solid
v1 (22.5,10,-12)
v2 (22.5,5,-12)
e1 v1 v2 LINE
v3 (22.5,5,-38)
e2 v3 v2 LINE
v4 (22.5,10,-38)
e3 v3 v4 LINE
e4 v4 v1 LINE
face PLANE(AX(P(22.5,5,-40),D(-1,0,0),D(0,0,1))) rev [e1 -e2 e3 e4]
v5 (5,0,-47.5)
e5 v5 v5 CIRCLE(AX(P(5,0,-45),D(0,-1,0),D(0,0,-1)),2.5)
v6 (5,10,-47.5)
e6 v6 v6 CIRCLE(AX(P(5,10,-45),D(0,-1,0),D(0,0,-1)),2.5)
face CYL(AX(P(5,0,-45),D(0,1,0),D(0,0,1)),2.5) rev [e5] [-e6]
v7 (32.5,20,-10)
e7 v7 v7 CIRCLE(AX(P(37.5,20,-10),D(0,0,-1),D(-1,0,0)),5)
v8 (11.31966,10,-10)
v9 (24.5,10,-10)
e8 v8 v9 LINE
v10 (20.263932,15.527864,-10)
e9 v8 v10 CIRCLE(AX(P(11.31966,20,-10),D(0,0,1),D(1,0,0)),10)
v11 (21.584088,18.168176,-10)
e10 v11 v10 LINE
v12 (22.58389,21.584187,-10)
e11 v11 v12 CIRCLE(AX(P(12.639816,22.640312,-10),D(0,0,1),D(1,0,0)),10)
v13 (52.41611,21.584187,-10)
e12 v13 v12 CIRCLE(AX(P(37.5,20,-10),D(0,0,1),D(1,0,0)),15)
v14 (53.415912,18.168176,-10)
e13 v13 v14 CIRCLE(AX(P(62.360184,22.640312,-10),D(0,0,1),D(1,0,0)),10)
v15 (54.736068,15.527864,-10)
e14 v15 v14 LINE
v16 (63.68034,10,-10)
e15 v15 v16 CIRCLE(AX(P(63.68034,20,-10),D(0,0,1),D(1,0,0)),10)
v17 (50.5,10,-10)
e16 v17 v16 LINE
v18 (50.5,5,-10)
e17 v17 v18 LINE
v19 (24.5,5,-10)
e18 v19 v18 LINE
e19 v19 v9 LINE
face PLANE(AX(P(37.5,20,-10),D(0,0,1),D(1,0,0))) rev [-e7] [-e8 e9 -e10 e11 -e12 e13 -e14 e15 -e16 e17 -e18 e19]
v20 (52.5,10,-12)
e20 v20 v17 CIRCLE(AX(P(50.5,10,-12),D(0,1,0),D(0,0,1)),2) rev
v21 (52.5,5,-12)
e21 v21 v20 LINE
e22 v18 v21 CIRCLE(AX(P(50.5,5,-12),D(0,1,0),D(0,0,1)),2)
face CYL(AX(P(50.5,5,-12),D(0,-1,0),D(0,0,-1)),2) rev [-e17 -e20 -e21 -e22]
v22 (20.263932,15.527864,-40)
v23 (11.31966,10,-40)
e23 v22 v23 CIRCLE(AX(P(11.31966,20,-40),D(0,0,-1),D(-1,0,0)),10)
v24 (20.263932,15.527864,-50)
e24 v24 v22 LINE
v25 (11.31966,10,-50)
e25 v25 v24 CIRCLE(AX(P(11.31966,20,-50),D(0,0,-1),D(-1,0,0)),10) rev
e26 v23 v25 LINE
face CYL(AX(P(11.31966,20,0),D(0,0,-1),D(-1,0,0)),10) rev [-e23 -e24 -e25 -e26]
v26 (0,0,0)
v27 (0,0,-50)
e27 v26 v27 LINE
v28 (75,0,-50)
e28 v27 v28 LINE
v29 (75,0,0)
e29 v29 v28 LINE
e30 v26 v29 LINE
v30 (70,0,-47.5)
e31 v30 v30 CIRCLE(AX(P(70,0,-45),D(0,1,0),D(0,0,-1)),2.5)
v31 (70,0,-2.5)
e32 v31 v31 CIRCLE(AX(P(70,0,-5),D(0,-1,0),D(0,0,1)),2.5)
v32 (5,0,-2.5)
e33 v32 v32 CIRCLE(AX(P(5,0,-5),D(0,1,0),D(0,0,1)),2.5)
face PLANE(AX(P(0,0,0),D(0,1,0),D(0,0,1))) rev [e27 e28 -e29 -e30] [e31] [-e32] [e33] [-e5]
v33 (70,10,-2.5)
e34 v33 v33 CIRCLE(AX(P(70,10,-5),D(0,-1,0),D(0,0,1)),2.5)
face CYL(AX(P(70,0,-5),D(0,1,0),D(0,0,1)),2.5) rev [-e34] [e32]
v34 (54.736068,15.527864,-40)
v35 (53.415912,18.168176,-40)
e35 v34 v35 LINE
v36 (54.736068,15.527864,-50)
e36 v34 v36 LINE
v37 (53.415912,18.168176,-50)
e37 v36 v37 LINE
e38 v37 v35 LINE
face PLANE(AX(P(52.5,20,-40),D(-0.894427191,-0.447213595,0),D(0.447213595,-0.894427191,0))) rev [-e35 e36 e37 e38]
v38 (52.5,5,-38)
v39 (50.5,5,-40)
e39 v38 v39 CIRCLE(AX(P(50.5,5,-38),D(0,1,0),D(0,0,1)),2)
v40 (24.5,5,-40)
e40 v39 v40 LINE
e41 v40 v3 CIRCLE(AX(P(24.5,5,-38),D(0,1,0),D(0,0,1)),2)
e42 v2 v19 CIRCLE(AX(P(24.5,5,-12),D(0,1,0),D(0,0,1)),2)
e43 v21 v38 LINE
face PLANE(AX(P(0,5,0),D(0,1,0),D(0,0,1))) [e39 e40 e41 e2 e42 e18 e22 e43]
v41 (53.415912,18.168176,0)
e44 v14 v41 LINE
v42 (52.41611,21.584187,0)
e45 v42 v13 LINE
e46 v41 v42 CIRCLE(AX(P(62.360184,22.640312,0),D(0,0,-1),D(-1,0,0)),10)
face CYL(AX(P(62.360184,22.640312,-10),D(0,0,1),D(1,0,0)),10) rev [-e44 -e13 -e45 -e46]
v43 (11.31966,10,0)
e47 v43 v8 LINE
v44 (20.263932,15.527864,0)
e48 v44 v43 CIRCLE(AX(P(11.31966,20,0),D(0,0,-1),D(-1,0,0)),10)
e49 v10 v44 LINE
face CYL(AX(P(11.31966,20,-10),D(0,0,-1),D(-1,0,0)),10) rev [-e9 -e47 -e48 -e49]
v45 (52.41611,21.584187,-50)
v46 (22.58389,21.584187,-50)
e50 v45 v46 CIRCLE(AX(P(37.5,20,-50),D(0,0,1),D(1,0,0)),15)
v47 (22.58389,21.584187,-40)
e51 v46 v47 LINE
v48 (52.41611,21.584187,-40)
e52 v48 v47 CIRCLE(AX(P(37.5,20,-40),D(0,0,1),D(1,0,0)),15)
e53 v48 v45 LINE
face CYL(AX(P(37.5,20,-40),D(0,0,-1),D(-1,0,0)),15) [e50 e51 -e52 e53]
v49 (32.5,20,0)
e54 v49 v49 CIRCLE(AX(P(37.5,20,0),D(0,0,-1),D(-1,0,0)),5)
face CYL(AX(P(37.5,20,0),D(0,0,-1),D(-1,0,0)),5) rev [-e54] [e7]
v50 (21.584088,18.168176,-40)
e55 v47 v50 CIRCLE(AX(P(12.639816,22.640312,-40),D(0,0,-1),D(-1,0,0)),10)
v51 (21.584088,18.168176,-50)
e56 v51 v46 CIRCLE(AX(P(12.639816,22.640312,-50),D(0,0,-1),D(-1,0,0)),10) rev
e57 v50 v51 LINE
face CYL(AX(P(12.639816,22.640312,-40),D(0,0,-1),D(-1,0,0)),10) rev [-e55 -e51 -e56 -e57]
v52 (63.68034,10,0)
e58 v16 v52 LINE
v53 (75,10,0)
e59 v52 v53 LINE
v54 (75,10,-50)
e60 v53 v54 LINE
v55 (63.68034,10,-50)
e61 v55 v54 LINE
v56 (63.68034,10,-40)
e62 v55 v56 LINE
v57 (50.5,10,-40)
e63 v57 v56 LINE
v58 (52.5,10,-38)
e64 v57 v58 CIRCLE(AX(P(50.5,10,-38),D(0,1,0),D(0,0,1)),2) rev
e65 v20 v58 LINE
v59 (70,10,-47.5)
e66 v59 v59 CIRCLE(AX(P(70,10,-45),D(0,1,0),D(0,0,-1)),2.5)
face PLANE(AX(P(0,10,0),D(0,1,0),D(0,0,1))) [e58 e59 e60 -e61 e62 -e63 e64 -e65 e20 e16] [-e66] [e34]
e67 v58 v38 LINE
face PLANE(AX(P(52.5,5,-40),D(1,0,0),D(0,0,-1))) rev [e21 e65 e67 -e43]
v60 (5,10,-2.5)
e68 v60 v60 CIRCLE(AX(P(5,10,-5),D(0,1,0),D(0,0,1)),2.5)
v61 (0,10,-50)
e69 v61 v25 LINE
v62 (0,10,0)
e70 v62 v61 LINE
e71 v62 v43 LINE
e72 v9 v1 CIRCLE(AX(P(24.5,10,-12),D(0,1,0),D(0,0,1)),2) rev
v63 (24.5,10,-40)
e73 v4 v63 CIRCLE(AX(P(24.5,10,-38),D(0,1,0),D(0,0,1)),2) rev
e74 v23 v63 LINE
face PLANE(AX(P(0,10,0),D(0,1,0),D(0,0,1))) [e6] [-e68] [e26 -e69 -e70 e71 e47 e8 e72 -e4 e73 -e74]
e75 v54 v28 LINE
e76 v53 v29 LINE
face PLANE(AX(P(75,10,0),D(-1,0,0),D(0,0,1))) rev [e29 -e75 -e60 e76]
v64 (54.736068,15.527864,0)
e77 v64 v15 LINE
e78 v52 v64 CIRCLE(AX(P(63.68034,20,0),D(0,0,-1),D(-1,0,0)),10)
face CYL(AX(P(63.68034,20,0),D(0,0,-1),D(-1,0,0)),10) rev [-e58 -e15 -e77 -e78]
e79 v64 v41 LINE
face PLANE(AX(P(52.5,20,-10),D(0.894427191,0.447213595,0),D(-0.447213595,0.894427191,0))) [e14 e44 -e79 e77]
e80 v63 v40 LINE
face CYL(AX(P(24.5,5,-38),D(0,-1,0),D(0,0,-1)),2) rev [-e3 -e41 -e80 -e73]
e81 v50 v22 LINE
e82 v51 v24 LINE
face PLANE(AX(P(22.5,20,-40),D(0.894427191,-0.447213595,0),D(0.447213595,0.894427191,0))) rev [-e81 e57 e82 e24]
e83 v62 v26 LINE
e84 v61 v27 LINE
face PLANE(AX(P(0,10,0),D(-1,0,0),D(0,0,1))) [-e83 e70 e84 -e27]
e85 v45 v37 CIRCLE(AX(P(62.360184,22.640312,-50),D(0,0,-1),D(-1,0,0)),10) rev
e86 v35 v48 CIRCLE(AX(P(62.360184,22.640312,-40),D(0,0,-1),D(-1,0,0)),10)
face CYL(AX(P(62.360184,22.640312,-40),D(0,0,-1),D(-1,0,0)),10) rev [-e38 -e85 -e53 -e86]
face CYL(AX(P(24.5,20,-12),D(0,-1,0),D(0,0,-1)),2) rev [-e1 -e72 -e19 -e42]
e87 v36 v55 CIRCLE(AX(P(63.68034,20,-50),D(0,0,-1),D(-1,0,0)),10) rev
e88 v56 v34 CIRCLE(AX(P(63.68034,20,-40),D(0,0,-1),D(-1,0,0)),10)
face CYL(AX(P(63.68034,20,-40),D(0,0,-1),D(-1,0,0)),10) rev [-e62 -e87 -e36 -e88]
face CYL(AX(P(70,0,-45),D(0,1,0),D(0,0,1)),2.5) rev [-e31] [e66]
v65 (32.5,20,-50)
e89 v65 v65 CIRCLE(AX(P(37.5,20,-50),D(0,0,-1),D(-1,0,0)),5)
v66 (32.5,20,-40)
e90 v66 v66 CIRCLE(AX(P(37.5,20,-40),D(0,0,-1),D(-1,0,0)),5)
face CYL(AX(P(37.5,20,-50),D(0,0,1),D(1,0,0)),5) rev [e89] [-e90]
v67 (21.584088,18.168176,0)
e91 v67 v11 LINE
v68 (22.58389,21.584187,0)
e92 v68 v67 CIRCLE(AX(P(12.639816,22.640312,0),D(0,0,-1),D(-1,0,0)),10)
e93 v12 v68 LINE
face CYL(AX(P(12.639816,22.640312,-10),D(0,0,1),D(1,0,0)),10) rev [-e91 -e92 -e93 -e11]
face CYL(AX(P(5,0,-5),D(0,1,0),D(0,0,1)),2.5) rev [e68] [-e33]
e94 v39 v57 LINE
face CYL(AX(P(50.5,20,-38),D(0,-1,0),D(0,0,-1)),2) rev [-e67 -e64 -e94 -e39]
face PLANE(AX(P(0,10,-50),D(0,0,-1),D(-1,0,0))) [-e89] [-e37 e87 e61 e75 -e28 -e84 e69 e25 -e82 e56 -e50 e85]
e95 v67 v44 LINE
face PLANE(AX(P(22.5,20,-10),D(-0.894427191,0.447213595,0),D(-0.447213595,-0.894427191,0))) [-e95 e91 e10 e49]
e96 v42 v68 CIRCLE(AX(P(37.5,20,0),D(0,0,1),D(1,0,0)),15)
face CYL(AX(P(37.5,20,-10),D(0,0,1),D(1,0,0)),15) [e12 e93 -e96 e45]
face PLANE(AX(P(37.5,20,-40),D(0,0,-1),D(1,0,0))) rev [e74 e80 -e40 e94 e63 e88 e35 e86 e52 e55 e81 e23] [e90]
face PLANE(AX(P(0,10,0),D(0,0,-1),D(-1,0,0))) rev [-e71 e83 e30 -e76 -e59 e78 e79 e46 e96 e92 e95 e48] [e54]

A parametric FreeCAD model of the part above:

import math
import FreeCAD as App
import Part
import Sketcher


def edges_at(feature, points):
    """Names of the edges that pass closest to the given points."""
    edges = feature.Shape.Edges
    near = lambda p: min(range(len(edges)), key=lambda i: edges[i].distToShape(Part.Vertex(*p))[0])
    return sorted({f"Edge{near(p) + 1}" for p in points})

doc = App.newDocument("Part")
body = doc.addObject("PartDesign::Body", "Body")

# Sketch on XZ plane
sketch1 = body.newObject("Sketcher::SketchObject", "Sketch")
sketch1.AttachmentSupport = (doc.getObject("XZ_Plane"), [""])
sketch1.MapMode = "FlatFace"
sketch1.addGeometry([
    Part.LineSegment(App.Vector(0, -50, 0), App.Vector(0, 0, 0)),
    Part.LineSegment(App.Vector(0, 0, 0), App.Vector(75, 0, 0)),
    Part.LineSegment(App.Vector(75, 0, 0), App.Vector(75, -50, 0)),
    Part.LineSegment(App.Vector(75, -50, 0), App.Vector(0, -50, 0)),
], False)
sketch1.addConstraint([
    Sketcher.Constraint("Coincident", 0, 2, 1, 1),
    Sketcher.Constraint("Coincident", 1, 2, 2, 1),
    Sketcher.Constraint("Coincident", 2, 2, 3, 1),
    Sketcher.Constraint("Coincident", 3, 2, 0, 1),
    Sketcher.Constraint("Vertical", 0),
    Sketcher.Constraint("Horizontal", 1),
    Sketcher.Constraint("Vertical", 2),
    Sketcher.Constraint("Horizontal", 3),
    Sketcher.Constraint("Coincident", 0, 2, -1, 1),
    Sketcher.Constraint("DistanceX", 1, 1, 1, 2, 75.0),
    Sketcher.Constraint("DistanceY", 0, 1, 0, 2, 50.0),
])
pad1 = body.newObject("PartDesign::Pad", "Pad")
pad1.Profile = sketch1
pad1.Length = 10
pad1.Reversed = True

# Sketch on XY plane
sketch2 = body.newObject("Sketcher::SketchObject", "Sketch001")
sketch2.AttachmentSupport = (doc.getObject("XY_Plane"), [""])
sketch2.MapMode = "FlatFace"
sketch2.addGeometry([
    Part.LineSegment(App.Vector(58, 10, 0), App.Vector(52, 20, 0)),
    Part.ArcOfCircle(Part.Circle(App.Vector(38, 20, 0), App.Vector(0, 0, 1), 15), math.radians(0), math.radians(180)),
    Part.LineSegment(App.Vector(22, 20, 0), App.Vector(18, 10, 0)),
    Part.LineSegment(App.Vector(18, 10, 0), App.Vector(58, 10, 0)),
], False)
sketch2.addConstraint([
    Sketcher.Constraint("Coincident", 0, 2, 1, 1),
    Sketcher.Constraint("Coincident", 1, 2, 2, 1),
    Sketcher.Constraint("Coincident", 2, 2, 3, 1),
    Sketcher.Constraint("Coincident", 3, 2, 0, 1),
    Sketcher.Constraint("Horizontal", 3),
    Sketcher.Constraint("Horizontal", 1, 3, 0, 2),
    Sketcher.Constraint("Horizontal", 0, 2, 1, 2),
    Sketcher.Constraint("Equal", 0, 2),
    Sketcher.Constraint("Radius", 1, 15.0),
    Sketcher.Constraint("DistanceX", 3, 1, 3, 2, 40.0),
    Sketcher.Constraint("DistanceY", -1, 1, 1, 3, 20.0),
    Sketcher.Constraint("DistanceY", -1, 1, 2, 2, 10.0),
    Sketcher.Constraint("DistanceX", -1, 1, 1, 3, 37.5),
])
pad2 = body.newObject("PartDesign::Pad", "Pad001")
pad2.Profile = sketch2
pad2.Length = 10
pad2.Reversed = True
doc.recompute()

fillet = body.newObject("PartDesign::Fillet", "Fillet")
fillet.Base = (pad2, edges_at(pad2, [
    (22.5, 20, -5),
    (52.5, 20, -5),
    (57.5, 10, -5),
    (17.5, 10, -5),
]))
fillet.Radius = 10

# Sketch on XY plane
sketch3 = body.newObject("Sketcher::SketchObject", "Sketch002")
sketch3.AttachmentSupport = (doc.getObject("XY_Plane"), [""])
sketch3.MapMode = "FlatFace"
sketch3.AttachmentOffset = App.Placement(App.Vector(0, 0, -10), App.Rotation())
sketch3.addGeometry(Part.Circle(App.Vector(38, 20, 0), App.Vector(0, 0, 1), 5), False)
sketch3.addConstraint([
    Sketcher.Constraint("Diameter", 0, 10.0),
    Sketcher.Constraint("DistanceY", -1, 1, 0, 3, 20.0),
    Sketcher.Constraint("DistanceX", -1, 1, 0, 3, 37.5),
])
pocket1 = body.newObject("PartDesign::Pocket", "Pocket")
pocket1.Profile = sketch3
pocket1.Type = "ThroughAll"
pocket1.Reversed = True
doc.recompute()

datumplane = body.newObject("PartDesign::Plane", "DatumPlane")
datumplane.AttachmentSupport = (doc.getObject("XY_Plane"), [""])
datumplane.MapMode = "FlatFace"
datumplane.AttachmentOffset = App.Placement(App.Vector(0, 0, -25), App.Rotation())
mirrored = body.newObject("PartDesign::Mirrored", "Mirrored")
mirrored.Originals = [pad2, pocket1]
mirrored.MirrorPlane = (datumplane, [""])
body.Tip = mirrored
doc.recompute()

fillet2 = body.newObject("PartDesign::Fillet", "Fillet001")
fillet2.Base = (mirrored, edges_at(mirrored, [
    (22.5, 20, -45),
    (52.5, 20, -45),
    (57.5, 10, -45),
    (17.5, 10, -45),
]))
fillet2.Radius = 10

# Sketch on XZ plane
sketch4 = body.newObject("Sketcher::SketchObject", "Sketch003")
sketch4.AttachmentSupport = (doc.getObject("XZ_Plane"), [""])
sketch4.MapMode = "FlatFace"
sketch4.AttachmentOffset = App.Placement(App.Vector(0, 0, -10), App.Rotation())
sketch4.addGeometry(Part.Circle(App.Vector(5, -5, 0), App.Vector(0, 0, 1), 2.5), False)
sketch4.addConstraint([
    Sketcher.Constraint("Diameter", 0, 5.0),
    Sketcher.Constraint("DistanceX", -1, 1, 0, 3, 5.0),
    Sketcher.Constraint("DistanceY", 0, 3, -1, 1, 5.0),
])
pocket2 = body.newObject("PartDesign::Pocket", "Pocket001")
pocket2.Profile = sketch4
pocket2.Type = "ThroughAll"
pocket2.Reversed = True
doc.recompute()

datumplane2 = body.newObject("PartDesign::Plane", "DatumPlane001")
datumplane2.AttachmentSupport = (doc.getObject("XY_Plane"), [""])
datumplane2.MapMode = "FlatFace"
datumplane2.AttachmentOffset = App.Placement(App.Vector(0, 0, -25), App.Rotation())
mirrored2 = body.newObject("PartDesign::Mirrored", "Mirrored001")
mirrored2.Originals = [pocket2]
mirrored2.MirrorPlane = (datumplane2, [""])
body.Tip = mirrored2
doc.recompute()

datumplane3 = body.newObject("PartDesign::Plane", "DatumPlane002")
datumplane3.AttachmentSupport = (doc.getObject("YZ_Plane"), [""])
datumplane3.MapMode = "FlatFace"
datumplane3.AttachmentOffset = App.Placement(App.Vector(0, 0, 37.5), App.Rotation())
mirrored3 = body.newObject("PartDesign::Mirrored", "Mirrored002")
mirrored3.Originals = [pocket2]
mirrored3.MirrorPlane = (datumplane3, [""])
body.Tip = mirrored3

# Sketch on XZ plane
sketch5 = body.newObject("Sketcher::SketchObject", "Sketch004")
sketch5.AttachmentSupport = (doc.getObject("XZ_Plane"), [""])
sketch5.MapMode = "FlatFace"
sketch5.AttachmentOffset = App.Placement(App.Vector(0, 0, -10), App.Rotation())
sketch5.addGeometry(Part.Circle(App.Vector(70, -45, 0), App.Vector(0, 0, 1), 2.5), False)
sketch5.addConstraint([
    Sketcher.Constraint("Diameter", 0, 5.0),
    Sketcher.Constraint("DistanceX", -1, 1, 0, 3, 70.0),
    Sketcher.Constraint("DistanceY", 0, 3, -1, 1, 45.0),
])
pocket3 = body.newObject("PartDesign::Pocket", "Pocket002")
pocket3.Profile = sketch5
pocket3.Type = "ThroughAll"
pocket3.Reversed = True

# Sketch on XZ plane
sketch6 = body.newObject("Sketcher::SketchObject", "Sketch005")
sketch6.AttachmentSupport = (doc.getObject("XZ_Plane"), [""])
sketch6.MapMode = "FlatFace"
sketch6.AttachmentOffset = App.Placement(App.Vector(0, 0, -10), App.Rotation())
sketch6.addGeometry([
    Part.LineSegment(App.Vector(22, -40, 0), App.Vector(22, -10, 0)),
    Part.LineSegment(App.Vector(22, -10, 0), App.Vector(52, -10, 0)),
    Part.LineSegment(App.Vector(52, -10, 0), App.Vector(52, -40, 0)),
    Part.LineSegment(App.Vector(52, -40, 0), App.Vector(22, -40, 0)),
], False)
sketch6.addConstraint([
    Sketcher.Constraint("Coincident", 0, 2, 1, 1),
    Sketcher.Constraint("Coincident", 1, 2, 2, 1),
    Sketcher.Constraint("Coincident", 2, 2, 3, 1),
    Sketcher.Constraint("Coincident", 3, 2, 0, 1),
    Sketcher.Constraint("Vertical", 0),
    Sketcher.Constraint("Horizontal", 1),
    Sketcher.Constraint("Vertical", 2),
    Sketcher.Constraint("Horizontal", 3),
    Sketcher.Constraint("Equal", 3, 0),
    Sketcher.Constraint("DistanceX", 1, 1, 1, 2, 30.0),
    Sketcher.Constraint("DistanceY", 0, 2, -1, 1, 10.0),
    Sketcher.Constraint("DistanceX", -1, 1, 0, 2, 22.5),
])
pocket4 = body.newObject("PartDesign::Pocket", "Pocket003")
pocket4.Profile = sketch6
pocket4.Length = 5
pocket4.Reversed = True
doc.recompute()

fillet3 = body.newObject("PartDesign::Fillet", "Fillet002")
fillet3.Base = (pocket4, edges_at(pocket4, [
    (22.5, 7.5, -10),
    (22.5, 7.5, -40),
    (52.5, 7.5, -40),
    (52.5, 7.5, -10),
]))
fillet3.Radius = 2

doc.recompute()
